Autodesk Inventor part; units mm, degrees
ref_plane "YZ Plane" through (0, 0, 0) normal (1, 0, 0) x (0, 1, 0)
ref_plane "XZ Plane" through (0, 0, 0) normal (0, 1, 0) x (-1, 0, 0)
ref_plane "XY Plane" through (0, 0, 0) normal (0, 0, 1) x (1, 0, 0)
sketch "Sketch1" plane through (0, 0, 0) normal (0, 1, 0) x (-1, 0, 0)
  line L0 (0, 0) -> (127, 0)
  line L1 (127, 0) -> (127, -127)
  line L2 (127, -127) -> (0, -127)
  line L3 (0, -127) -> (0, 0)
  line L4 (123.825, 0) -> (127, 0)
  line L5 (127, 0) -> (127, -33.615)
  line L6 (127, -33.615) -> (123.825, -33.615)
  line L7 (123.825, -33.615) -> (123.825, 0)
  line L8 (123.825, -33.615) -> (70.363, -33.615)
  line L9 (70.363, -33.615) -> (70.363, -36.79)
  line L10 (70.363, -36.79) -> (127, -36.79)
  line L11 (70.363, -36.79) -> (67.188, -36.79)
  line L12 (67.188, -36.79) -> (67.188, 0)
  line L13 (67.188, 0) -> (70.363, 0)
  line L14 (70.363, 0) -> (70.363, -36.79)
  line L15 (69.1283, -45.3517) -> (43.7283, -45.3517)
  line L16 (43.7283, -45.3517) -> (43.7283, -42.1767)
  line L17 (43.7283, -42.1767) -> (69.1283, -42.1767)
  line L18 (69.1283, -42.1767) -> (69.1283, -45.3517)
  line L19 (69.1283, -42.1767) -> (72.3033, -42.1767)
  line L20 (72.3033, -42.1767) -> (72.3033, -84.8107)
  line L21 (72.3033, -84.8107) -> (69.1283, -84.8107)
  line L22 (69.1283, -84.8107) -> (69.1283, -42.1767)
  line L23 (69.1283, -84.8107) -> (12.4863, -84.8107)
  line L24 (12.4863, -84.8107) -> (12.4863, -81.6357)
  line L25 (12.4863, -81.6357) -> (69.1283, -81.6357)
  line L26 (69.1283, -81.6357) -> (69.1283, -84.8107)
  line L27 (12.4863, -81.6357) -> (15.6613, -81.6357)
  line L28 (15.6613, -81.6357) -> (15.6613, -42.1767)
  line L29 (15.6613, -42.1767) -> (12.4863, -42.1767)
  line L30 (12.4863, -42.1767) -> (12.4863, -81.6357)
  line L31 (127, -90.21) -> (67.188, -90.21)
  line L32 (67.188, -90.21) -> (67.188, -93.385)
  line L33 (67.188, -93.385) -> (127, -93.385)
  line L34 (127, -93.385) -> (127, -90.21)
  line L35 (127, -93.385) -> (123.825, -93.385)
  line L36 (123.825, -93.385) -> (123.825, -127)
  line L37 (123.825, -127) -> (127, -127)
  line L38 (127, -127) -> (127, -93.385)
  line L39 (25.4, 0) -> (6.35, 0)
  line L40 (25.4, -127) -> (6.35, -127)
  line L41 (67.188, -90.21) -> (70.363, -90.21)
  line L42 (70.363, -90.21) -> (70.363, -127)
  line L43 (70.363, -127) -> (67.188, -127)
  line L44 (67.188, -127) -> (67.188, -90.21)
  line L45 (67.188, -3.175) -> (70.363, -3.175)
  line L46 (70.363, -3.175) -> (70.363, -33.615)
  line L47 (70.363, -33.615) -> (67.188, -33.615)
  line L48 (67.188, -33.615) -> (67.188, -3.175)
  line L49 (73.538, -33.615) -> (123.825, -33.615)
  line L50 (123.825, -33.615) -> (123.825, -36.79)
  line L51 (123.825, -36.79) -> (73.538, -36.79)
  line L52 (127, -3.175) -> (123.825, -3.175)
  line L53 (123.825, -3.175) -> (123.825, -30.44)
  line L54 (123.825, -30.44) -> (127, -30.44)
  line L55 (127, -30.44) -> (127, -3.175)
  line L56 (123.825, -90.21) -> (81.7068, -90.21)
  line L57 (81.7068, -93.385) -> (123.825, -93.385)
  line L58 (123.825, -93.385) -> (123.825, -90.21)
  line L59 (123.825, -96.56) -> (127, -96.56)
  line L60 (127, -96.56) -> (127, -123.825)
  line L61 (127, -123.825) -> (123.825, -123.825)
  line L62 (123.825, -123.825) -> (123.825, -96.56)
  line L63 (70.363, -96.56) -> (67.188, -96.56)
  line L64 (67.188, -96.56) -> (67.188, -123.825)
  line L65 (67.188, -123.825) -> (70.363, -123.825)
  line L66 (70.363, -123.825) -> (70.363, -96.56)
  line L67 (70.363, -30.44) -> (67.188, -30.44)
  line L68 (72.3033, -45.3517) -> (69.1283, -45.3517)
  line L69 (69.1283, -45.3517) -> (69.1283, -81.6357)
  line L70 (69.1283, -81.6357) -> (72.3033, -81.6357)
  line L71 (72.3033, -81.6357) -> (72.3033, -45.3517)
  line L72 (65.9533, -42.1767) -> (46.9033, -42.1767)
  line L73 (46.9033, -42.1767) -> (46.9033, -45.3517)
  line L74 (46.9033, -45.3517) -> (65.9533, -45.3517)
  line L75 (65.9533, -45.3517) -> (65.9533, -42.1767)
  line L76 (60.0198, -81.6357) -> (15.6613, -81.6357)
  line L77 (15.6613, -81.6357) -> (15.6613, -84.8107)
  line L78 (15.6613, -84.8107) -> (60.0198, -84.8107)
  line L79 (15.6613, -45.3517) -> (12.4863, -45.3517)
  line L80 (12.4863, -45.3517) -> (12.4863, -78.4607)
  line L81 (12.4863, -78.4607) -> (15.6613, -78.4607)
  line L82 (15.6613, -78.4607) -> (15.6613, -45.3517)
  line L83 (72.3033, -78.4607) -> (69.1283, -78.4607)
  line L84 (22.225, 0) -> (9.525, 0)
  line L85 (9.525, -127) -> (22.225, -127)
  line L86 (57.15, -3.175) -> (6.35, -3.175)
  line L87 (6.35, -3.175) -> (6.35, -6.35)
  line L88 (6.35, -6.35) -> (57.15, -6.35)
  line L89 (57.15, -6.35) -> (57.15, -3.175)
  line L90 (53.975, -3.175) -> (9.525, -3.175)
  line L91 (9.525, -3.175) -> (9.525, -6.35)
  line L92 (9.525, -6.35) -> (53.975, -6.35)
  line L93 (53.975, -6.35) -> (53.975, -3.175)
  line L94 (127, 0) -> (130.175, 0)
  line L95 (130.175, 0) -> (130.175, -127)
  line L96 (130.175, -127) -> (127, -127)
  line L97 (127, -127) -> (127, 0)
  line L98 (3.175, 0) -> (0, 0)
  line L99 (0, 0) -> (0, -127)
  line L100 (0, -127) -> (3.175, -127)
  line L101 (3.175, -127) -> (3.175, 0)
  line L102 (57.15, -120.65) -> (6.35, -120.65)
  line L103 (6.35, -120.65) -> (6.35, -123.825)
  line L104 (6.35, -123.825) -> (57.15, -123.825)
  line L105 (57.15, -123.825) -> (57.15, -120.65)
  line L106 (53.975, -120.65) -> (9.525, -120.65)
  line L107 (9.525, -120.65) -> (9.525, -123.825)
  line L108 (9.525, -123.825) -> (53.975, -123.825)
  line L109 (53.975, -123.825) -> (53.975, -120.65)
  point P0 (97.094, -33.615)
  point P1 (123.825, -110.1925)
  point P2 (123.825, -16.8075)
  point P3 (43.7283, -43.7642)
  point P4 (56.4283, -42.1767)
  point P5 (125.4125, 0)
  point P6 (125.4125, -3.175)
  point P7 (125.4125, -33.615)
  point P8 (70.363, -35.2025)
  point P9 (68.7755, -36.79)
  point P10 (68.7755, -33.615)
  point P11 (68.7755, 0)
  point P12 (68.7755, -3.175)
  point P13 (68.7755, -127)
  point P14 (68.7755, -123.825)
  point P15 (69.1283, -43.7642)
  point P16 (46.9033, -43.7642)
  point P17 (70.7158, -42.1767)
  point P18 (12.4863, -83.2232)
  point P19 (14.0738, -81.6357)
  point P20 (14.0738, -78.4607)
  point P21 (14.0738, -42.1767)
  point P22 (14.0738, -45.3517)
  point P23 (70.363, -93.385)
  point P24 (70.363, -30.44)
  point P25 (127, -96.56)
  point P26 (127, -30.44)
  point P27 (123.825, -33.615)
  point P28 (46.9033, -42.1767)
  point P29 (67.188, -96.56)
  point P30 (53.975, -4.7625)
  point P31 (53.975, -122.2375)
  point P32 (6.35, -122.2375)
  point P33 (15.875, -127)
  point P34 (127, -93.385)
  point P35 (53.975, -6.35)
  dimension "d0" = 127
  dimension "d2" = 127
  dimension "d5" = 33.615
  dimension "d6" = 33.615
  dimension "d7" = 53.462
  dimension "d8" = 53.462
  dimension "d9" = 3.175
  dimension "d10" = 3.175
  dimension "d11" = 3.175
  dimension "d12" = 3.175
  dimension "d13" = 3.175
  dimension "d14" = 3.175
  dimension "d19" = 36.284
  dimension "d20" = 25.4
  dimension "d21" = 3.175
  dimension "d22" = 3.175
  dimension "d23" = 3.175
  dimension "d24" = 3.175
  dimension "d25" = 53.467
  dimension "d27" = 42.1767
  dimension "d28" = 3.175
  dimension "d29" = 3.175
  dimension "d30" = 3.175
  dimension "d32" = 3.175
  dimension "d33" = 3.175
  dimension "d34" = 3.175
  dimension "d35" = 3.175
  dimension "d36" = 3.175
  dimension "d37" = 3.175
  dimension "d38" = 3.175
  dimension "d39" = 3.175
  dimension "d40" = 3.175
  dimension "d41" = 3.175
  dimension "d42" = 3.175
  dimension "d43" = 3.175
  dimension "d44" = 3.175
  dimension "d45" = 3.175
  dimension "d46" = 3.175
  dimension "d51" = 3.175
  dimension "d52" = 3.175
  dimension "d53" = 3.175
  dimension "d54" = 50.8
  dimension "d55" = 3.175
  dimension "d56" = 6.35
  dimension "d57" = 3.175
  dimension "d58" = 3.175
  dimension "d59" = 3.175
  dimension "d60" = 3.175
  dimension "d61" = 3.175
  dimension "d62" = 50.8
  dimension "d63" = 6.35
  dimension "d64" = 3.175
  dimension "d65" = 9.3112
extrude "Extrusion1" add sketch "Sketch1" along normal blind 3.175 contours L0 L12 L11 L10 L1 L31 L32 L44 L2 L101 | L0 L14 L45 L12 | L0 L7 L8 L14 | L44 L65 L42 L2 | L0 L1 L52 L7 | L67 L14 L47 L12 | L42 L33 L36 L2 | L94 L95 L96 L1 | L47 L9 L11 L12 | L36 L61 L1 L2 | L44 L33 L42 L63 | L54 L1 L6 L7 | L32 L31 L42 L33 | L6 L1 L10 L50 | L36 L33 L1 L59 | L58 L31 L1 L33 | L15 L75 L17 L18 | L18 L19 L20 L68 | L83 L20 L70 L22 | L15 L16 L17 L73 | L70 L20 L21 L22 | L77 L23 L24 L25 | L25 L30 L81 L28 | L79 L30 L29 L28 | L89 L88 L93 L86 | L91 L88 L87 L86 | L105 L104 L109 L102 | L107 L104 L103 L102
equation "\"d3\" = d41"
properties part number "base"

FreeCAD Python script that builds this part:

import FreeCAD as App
import Part
import Sketcher
from FreeCAD import Vector
Q = App.Units.Quantity

doc = App.newDocument("Part")
body = doc.addObject("PartDesign::Body", "Body")

# Sketch on XZ plane
sketch1 = doc.addObject("Sketcher::SketchObject", "Sketch")
body.addObject(sketch1)
sketch1.AttachmentSupport = (doc.XZ_Plane, [""])
sketch1.MapMode = "FlatFace"
sketch1.addGeometry(Part.LineSegment(Vector(-3.2, 0, 0), Vector(-3.2, -127, 0)), False)
sketch1.addGeometry(Part.LineSegment(Vector(-3.2, -127, 0), Vector(-130.2, -127, 0)), False)
sketch1.addGeometry(Part.LineSegment(Vector(-130.2, -127, 0), Vector(-130.2, 0, 0)), False)
sketch1.addGeometry(Part.LineSegment(Vector(-130.2, 0, 0), Vector(-3.2, 0, 0)), False)
sketch1.addGeometry(Part.LineSegment(Vector(-67.2, -30.4, 0), Vector(-67.2, -3.2, 0)), False)
sketch1.addGeometry(Part.LineSegment(Vector(-67.2, -3.2, 0), Vector(-70.4, -3.2, 0)), False)
sketch1.addGeometry(Part.LineSegment(Vector(-70.4, -3.2, 0), Vector(-70.4, -30.4, 0)), False)
sketch1.addGeometry(Part.LineSegment(Vector(-70.4, -30.4, 0), Vector(-67.2, -30.4, 0)), False)
sketch1.addGeometry(Part.LineSegment(Vector(-70.4, -36.8, 0), Vector(-70.4, -33.6, 0)), False)
sketch1.addGeometry(Part.LineSegment(Vector(-70.4, -33.6, 0), Vector(-123.8, -33.6, 0)), False)
sketch1.addGeometry(Part.LineSegment(Vector(-123.8, -33.6, 0), Vector(-123.8, -36.8, 0)), False)
sketch1.addGeometry(Part.LineSegment(Vector(-123.8, -36.8, 0), Vector(-70.4, -36.8, 0)), False)
sketch1.addGeometry(Part.LineSegment(Vector(-123.8, -90.2, 0), Vector(-123.8, -93.4, 0)), False)
sketch1.addGeometry(Part.LineSegment(Vector(-123.8, -93.4, 0), Vector(-70.4, -93.4, 0)), False)
sketch1.addGeometry(Part.LineSegment(Vector(-70.4, -93.4, 0), Vector(-70.4, -90.2, 0)), False)
sketch1.addGeometry(Part.LineSegment(Vector(-70.4, -90.2, 0), Vector(-123.8, -90.2, 0)), False)
sketch1.addGeometry(Part.LineSegment(Vector(-67.2, -123.8, 0), Vector(-67.2, -96.6, 0)), False)
sketch1.addGeometry(Part.LineSegment(Vector(-67.2, -96.6, 0), Vector(-70.4, -96.6, 0)), False)
sketch1.addGeometry(Part.LineSegment(Vector(-70.4, -96.6, 0), Vector(-70.4, -123.8, 0)), False)
sketch1.addGeometry(Part.LineSegment(Vector(-70.4, -123.8, 0), Vector(-67.2, -123.8, 0)), False)
sketch1.addGeometry(Part.LineSegment(Vector(-9.5, -120.7, 0), Vector(-54, -120.7, 0)), False)
sketch1.addGeometry(Part.LineSegment(Vector(-54, -120.7, 0), Vector(-54, -123.8, 0)), False)
sketch1.addGeometry(Part.LineSegment(Vector(-54, -123.8, 0), Vector(-9.5, -123.8, 0)), False)
sketch1.addGeometry(Part.LineSegment(Vector(-9.5, -123.8, 0), Vector(-9.5, -120.7, 0)), False)
sketch1.addGeometry(Part.LineSegment(Vector(-69.1, -78.5, 0), Vector(-69.1, -45.4, 0)), False)
sketch1.addGeometry(Part.LineSegment(Vector(-69.1, -45.4, 0), Vector(-72.3, -45.4, 0)), False)
sketch1.addGeometry(Part.LineSegment(Vector(-72.3, -45.4, 0), Vector(-72.3, -78.5, 0)), False)
sketch1.addGeometry(Part.LineSegment(Vector(-72.3, -78.5, 0), Vector(-69.1, -78.5, 0)), False)
sketch1.addGeometry(Part.LineSegment(Vector(-69.1, -81.6, 0), Vector(-69.1, -84.8, 0)), False)
sketch1.addGeometry(Part.LineSegment(Vector(-69.1, -84.8, 0), Vector(-15.7, -84.8, 0)), False)
sketch1.addGeometry(Part.LineSegment(Vector(-15.7, -84.8, 0), Vector(-15.7, -81.6, 0)), False)
sketch1.addGeometry(Part.LineSegment(Vector(-15.7, -81.6, 0), Vector(-69.1, -81.6, 0)), False)
sketch1.addGeometry(Part.LineSegment(Vector(-15.7, -45.4, 0), Vector(-15.7, -78.5, 0)), False)
sketch1.addGeometry(Part.LineSegment(Vector(-15.7, -78.5, 0), Vector(-12.5, -78.5, 0)), False)
sketch1.addGeometry(Part.LineSegment(Vector(-12.5, -78.5, 0), Vector(-12.5, -45.4, 0)), False)
sketch1.addGeometry(Part.LineSegment(Vector(-12.5, -45.4, 0), Vector(-15.7, -45.4, 0)), False)
sketch1.addGeometry(Part.LineSegment(Vector(-46.9, -42.2, 0), Vector(-66, -42.2, 0)), False)
sketch1.addGeometry(Part.LineSegment(Vector(-66, -42.2, 0), Vector(-66, -45.4, 0)), False)
sketch1.addGeometry(Part.LineSegment(Vector(-66, -45.4, 0), Vector(-46.9, -45.4, 0)), False)
sketch1.addGeometry(Part.LineSegment(Vector(-46.9, -45.4, 0), Vector(-46.9, -42.2, 0)), False)
sketch1.addGeometry(Part.LineSegment(Vector(-9.5, -3.2, 0), Vector(-54, -3.2, 0)), False)
sketch1.addGeometry(Part.LineSegment(Vector(-54, -3.2, 0), Vector(-54, -6.3, 0)), False)
sketch1.addGeometry(Part.LineSegment(Vector(-54, -6.3, 0), Vector(-9.5, -6.3, 0)), False)
sketch1.addGeometry(Part.LineSegment(Vector(-9.5, -6.3, 0), Vector(-9.5, -3.2, 0)), False)
sketch1.addGeometry(Part.LineSegment(Vector(-127, -96.6, 0), Vector(-127, -123.8, 0)), False)
sketch1.addGeometry(Part.LineSegment(Vector(-127, -123.8, 0), Vector(-123.8, -123.8, 0)), False)
sketch1.addGeometry(Part.LineSegment(Vector(-123.8, -123.8, 0), Vector(-123.8, -96.6, 0)), False)
sketch1.addGeometry(Part.LineSegment(Vector(-123.8, -96.6, 0), Vector(-127, -96.6, 0)), False)
sketch1.addGeometry(Part.LineSegment(Vector(-127, -3.2, 0), Vector(-127, -30.4, 0)), False)
sketch1.addGeometry(Part.LineSegment(Vector(-127, -30.4, 0), Vector(-123.8, -30.4, 0)), False)
sketch1.addGeometry(Part.LineSegment(Vector(-123.8, -30.4, 0), Vector(-123.8, -3.2, 0)), False)
sketch1.addGeometry(Part.LineSegment(Vector(-123.8, -3.2, 0), Vector(-127, -3.2, 0)), False)
sketch1.addConstraint(Sketcher.Constraint("Coincident", 0, 2, 1, 1))
sketch1.addConstraint(Sketcher.Constraint("Coincident", 1, 2, 2, 1))
sketch1.addConstraint(Sketcher.Constraint("Coincident", 2, 2, 3, 1))
sketch1.addConstraint(Sketcher.Constraint("Coincident", 3, 2, 0, 1))
sketch1.addConstraint(Sketcher.Constraint("Coincident", 4, 2, 5, 1))
sketch1.addConstraint(Sketcher.Constraint("Coincident", 5, 2, 6, 1))
sketch1.addConstraint(Sketcher.Constraint("Coincident", 6, 2, 7, 1))
sketch1.addConstraint(Sketcher.Constraint("Coincident", 7, 2, 4, 1))
sketch1.addConstraint(Sketcher.Constraint("Coincident", 8, 2, 9, 1))
sketch1.addConstraint(Sketcher.Constraint("Coincident", 9, 2, 10, 1))
sketch1.addConstraint(Sketcher.Constraint("Coincident", 10, 2, 11, 1))
sketch1.addConstraint(Sketcher.Constraint("Coincident", 11, 2, 8, 1))
sketch1.addConstraint(Sketcher.Constraint("Coincident", 12, 2, 13, 1))
sketch1.addConstraint(Sketcher.Constraint("Coincident", 13, 2, 14, 1))
sketch1.addConstraint(Sketcher.Constraint("Coincident", 14, 2, 15, 1))
sketch1.addConstraint(Sketcher.Constraint("Coincident", 15, 2, 12, 1))
sketch1.addConstraint(Sketcher.Constraint("Coincident", 16, 2, 17, 1))
sketch1.addConstraint(Sketcher.Constraint("Coincident", 17, 2, 18, 1))
sketch1.addConstraint(Sketcher.Constraint("Coincident", 18, 2, 19, 1))
sketch1.addConstraint(Sketcher.Constraint("Coincident", 19, 2, 16, 1))
sketch1.addConstraint(Sketcher.Constraint("Coincident", 20, 2, 21, 1))
sketch1.addConstraint(Sketcher.Constraint("Coincident", 21, 2, 22, 1))
sketch1.addConstraint(Sketcher.Constraint("Coincident", 22, 2, 23, 1))
sketch1.addConstraint(Sketcher.Constraint("Coincident", 23, 2, 20, 1))
sketch1.addConstraint(Sketcher.Constraint("Coincident", 24, 2, 25, 1))
sketch1.addConstraint(Sketcher.Constraint("Coincident", 25, 2, 26, 1))
sketch1.addConstraint(Sketcher.Constraint("Coincident", 26, 2, 27, 1))
sketch1.addConstraint(Sketcher.Constraint("Coincident", 27, 2, 24, 1))
sketch1.addConstraint(Sketcher.Constraint("Coincident", 28, 2, 29, 1))
sketch1.addConstraint(Sketcher.Constraint("Coincident", 29, 2, 30, 1))
sketch1.addConstraint(Sketcher.Constraint("Coincident", 30, 2, 31, 1))
sketch1.addConstraint(Sketcher.Constraint("Coincident", 31, 2, 28, 1))
sketch1.addConstraint(Sketcher.Constraint("Coincident", 32, 2, 33, 1))
sketch1.addConstraint(Sketcher.Constraint("Coincident", 33, 2, 34, 1))
sketch1.addConstraint(Sketcher.Constraint("Coincident", 34, 2, 35, 1))
sketch1.addConstraint(Sketcher.Constraint("Coincident", 35, 2, 32, 1))
sketch1.addConstraint(Sketcher.Constraint("Coincident", 36, 2, 37, 1))
sketch1.addConstraint(Sketcher.Constraint("Coincident", 37, 2, 38, 1))
sketch1.addConstraint(Sketcher.Constraint("Coincident", 38, 2, 39, 1))
sketch1.addConstraint(Sketcher.Constraint("Coincident", 39, 2, 36, 1))
sketch1.addConstraint(Sketcher.Constraint("Coincident", 40, 2, 41, 1))
sketch1.addConstraint(Sketcher.Constraint("Coincident", 41, 2, 42, 1))
sketch1.addConstraint(Sketcher.Constraint("Coincident", 42, 2, 43, 1))
sketch1.addConstraint(Sketcher.Constraint("Coincident", 43, 2, 40, 1))
sketch1.addConstraint(Sketcher.Constraint("Coincident", 44, 2, 45, 1))
sketch1.addConstraint(Sketcher.Constraint("Coincident", 45, 2, 46, 1))
sketch1.addConstraint(Sketcher.Constraint("Coincident", 46, 2, 47, 1))
sketch1.addConstraint(Sketcher.Constraint("Coincident", 47, 2, 44, 1))
sketch1.addConstraint(Sketcher.Constraint("Coincident", 48, 2, 49, 1))
sketch1.addConstraint(Sketcher.Constraint("Coincident", 49, 2, 50, 1))
sketch1.addConstraint(Sketcher.Constraint("Coincident", 50, 2, 51, 1))
sketch1.addConstraint(Sketcher.Constraint("Coincident", 51, 2, 48, 1))
sketch1.addConstraint(Sketcher.Constraint("Vertical", 0))
sketch1.addConstraint(Sketcher.Constraint("Horizontal", 1))
sketch1.addConstraint(Sketcher.Constraint("Vertical", 2))
sketch1.addConstraint(Sketcher.Constraint("Horizontal", 3))
sketch1.addConstraint(Sketcher.Constraint("Vertical", 4))
sketch1.addConstraint(Sketcher.Constraint("Horizontal", 5))
sketch1.addConstraint(Sketcher.Constraint("Vertical", 6))
sketch1.addConstraint(Sketcher.Constraint("Horizontal", 7))
sketch1.addConstraint(Sketcher.Constraint("Vertical", 8))
sketch1.addConstraint(Sketcher.Constraint("Horizontal", 9))
sketch1.addConstraint(Sketcher.Constraint("Vertical", 10))
sketch1.addConstraint(Sketcher.Constraint("Horizontal", 11))
sketch1.addConstraint(Sketcher.Constraint("Vertical", 12))
sketch1.addConstraint(Sketcher.Constraint("Horizontal", 13))
sketch1.addConstraint(Sketcher.Constraint("Vertical", 14))
sketch1.addConstraint(Sketcher.Constraint("Horizontal", 15))
sketch1.addConstraint(Sketcher.Constraint("Vertical", 16))
sketch1.addConstraint(Sketcher.Constraint("Horizontal", 17))
sketch1.addConstraint(Sketcher.Constraint("Vertical", 18))
sketch1.addConstraint(Sketcher.Constraint("Horizontal", 19))
sketch1.addConstraint(Sketcher.Constraint("Horizontal", 20))
sketch1.addConstraint(Sketcher.Constraint("Vertical", 21))
sketch1.addConstraint(Sketcher.Constraint("Horizontal", 22))
sketch1.addConstraint(Sketcher.Constraint("Vertical", 23))
sketch1.addConstraint(Sketcher.Constraint("Vertical", 24))
sketch1.addConstraint(Sketcher.Constraint("Horizontal", 25))
sketch1.addConstraint(Sketcher.Constraint("Vertical", 26))
sketch1.addConstraint(Sketcher.Constraint("Horizontal", 27))
sketch1.addConstraint(Sketcher.Constraint("Vertical", 28))
sketch1.addConstraint(Sketcher.Constraint("Horizontal", 29))
sketch1.addConstraint(Sketcher.Constraint("Vertical", 30))
sketch1.addConstraint(Sketcher.Constraint("Horizontal", 31))
sketch1.addConstraint(Sketcher.Constraint("Vertical", 32))
sketch1.addConstraint(Sketcher.Constraint("Horizontal", 33))
sketch1.addConstraint(Sketcher.Constraint("Vertical", 34))
sketch1.addConstraint(Sketcher.Constraint("Horizontal", 35))
sketch1.addConstraint(Sketcher.Constraint("Horizontal", 36))
sketch1.addConstraint(Sketcher.Constraint("Vertical", 37))
sketch1.addConstraint(Sketcher.Constraint("Horizontal", 38))
sketch1.addConstraint(Sketcher.Constraint("Vertical", 39))
sketch1.addConstraint(Sketcher.Constraint("Horizontal", 40))
sketch1.addConstraint(Sketcher.Constraint("Vertical", 41))
sketch1.addConstraint(Sketcher.Constraint("Horizontal", 42))
sketch1.addConstraint(Sketcher.Constraint("Vertical", 43))
sketch1.addConstraint(Sketcher.Constraint("Vertical", 44))
sketch1.addConstraint(Sketcher.Constraint("Horizontal", 45))
sketch1.addConstraint(Sketcher.Constraint("Vertical", 46))
sketch1.addConstraint(Sketcher.Constraint("Horizontal", 47))
sketch1.addConstraint(Sketcher.Constraint("Vertical", 48))
sketch1.addConstraint(Sketcher.Constraint("Horizontal", 49))
sketch1.addConstraint(Sketcher.Constraint("Vertical", 50))
sketch1.addConstraint(Sketcher.Constraint("Horizontal", 51))
sketch1.addConstraint(Sketcher.Constraint("PointOnObject", 2, 2, -1))
sketch1.addConstraint(Sketcher.Constraint("Horizontal", 19, 2, 21, 2))
sketch1.addConstraint(Sketcher.Constraint("Horizontal", 27, 2, 32, 2))
sketch1.addConstraint(Sketcher.Constraint("Horizontal", 25, 2, 34, 2))
sketch1.addConstraint(Sketcher.Constraint("Horizontal", 35, 2, 37, 2))
sketch1.addConstraint(Sketcher.Constraint("Horizontal", 5, 2, 40, 2))
sketch1.addConstraint(Sketcher.Constraint("Horizontal", 22, 2, 44, 2))
sketch1.addConstraint(Sketcher.Constraint("Horizontal", 17, 2, 46, 2))
sketch1.addConstraint(Sketcher.Constraint("Horizontal", 7, 2, 48, 2))
sketch1.addConstraint(Sketcher.Constraint("Horizontal", 43, 2, 50, 2))
sketch1.addConstraint(Sketcher.Constraint("Vertical", 6, 2, 8, 2))
sketch1.addConstraint(Sketcher.Constraint("Vertical", 10, 2, 12, 2))
sketch1.addConstraint(Sketcher.Constraint("Vertical", 11, 2, 13, 2))
sketch1.addConstraint(Sketcher.Constraint("Vertical", 7, 2, 16, 2))
sketch1.addConstraint(Sketcher.Constraint("Vertical", 14, 2, 17, 2))
sketch1.addConstraint(Sketcher.Constraint("Vertical", 27, 2, 28, 2))
sketch1.addConstraint(Sketcher.Constraint("Vertical", 30, 2, 32, 2))
sketch1.addConstraint(Sketcher.Constraint("Vertical", 21, 2, 40, 2))
sketch1.addConstraint(Sketcher.Constraint("Vertical", 23, 2, 42, 2))
sketch1.addConstraint(Sketcher.Constraint("Vertical", 15, 2, 45, 2))
sketch1.addConstraint(Sketcher.Constraint("Vertical", 47, 2, 48, 2))
sketch1.addConstraint(Sketcher.Constraint("Vertical", 46, 2, 49, 2))
sketch1.addConstraint(Sketcher.Constraint("Equal", 19, 25))
sketch1.addConstraint(Sketcher.Constraint("Equal", 27, 33))
sketch1.addConstraint(Sketcher.Constraint("Equal", 35, 45))
sketch1.addConstraint(Sketcher.Constraint("Equal", 3, 0))
sketch1.addConstraint(Sketcher.Constraint("Equal", 51, 8))
sketch1.addConstraint(Sketcher.Constraint("Equal", 10, 12))
sketch1.addConstraint(Sketcher.Constraint("Equal", 6, 16))
sketch1.addConstraint(Sketcher.Constraint("Equal", 14, 21))
sketch1.addConstraint(Sketcher.Constraint("Equal", 23, 28))
sketch1.addConstraint(Sketcher.Constraint("Equal", 30, 37))
sketch1.addConstraint(Sketcher.Constraint("Equal", 39, 41))
sketch1.addConstraint(Sketcher.Constraint("DistanceX", 1, 2, 1, 1, Q("5 in")))
sketch1.addConstraint(Sketcher.Constraint("DistanceX", 44, 2, -1, 1, Q("5 in")))
sketch1.addConstraint(Sketcher.Constraint("DistanceX", 5, 2, 5, 1, Q("0.125 in")))
sketch1.addConstraint(Sketcher.Constraint("DistanceX", 29, 1, 29, 2, Q("2.105 in")))
sketch1.addConstraint(Sketcher.Constraint("DistanceY", 41, 2, -1, 1, Q("0.25 in")))
sketch1.addConstraint(Sketcher.Constraint("DistanceX", 2, 2, 9, 2, Q("0.25 in")))
sketch1.addConstraint(Sketcher.Constraint("DistanceY", 10, 2, 6, 2, Q("0.25 in")))
sketch1.addConstraint(Sketcher.Constraint("DistanceY", 16, 2, 14, 2, Q("0.25 in")))
sketch1.addConstraint(Sketcher.Constraint("DistanceX", 22, 2, 0, 2, Q("0.25 in")))
sketch1.addConstraint(Sketcher.Constraint("DistanceY", 0, 2, 23, 2, Q("0.25 in")))
sketch1.addConstraint(Sketcher.Constraint("DistanceY", 28, 2, 27, 2, Q("0.25 in")))
sketch1.addConstraint(Sketcher.Constraint("DistanceX", 25, 2, 36, 2, Q("0.25 in")))
sketch1.addConstraint(Sketcher.Constraint("DistanceX", 9, 2, 9, 1, Q("2.1048 in")))
sketch1.addConstraint(Sketcher.Constraint("DistanceX", 20, 2, 20, 1, Q("1.75 in")))
sketch1.addConstraint(Sketcher.Constraint("DistanceX", 36, 2, 36, 1, Q("0.75 in")))
sketch1.addConstraint(Sketcher.Constraint("DistanceY", 36, 2, -1, 1, Q("1.6605 in")))
sketch1.addConstraint(Sketcher.Constraint("DistanceY", 30, 2, 34, 2, Q("1.4285 in")))
sketch1.addConstraint(Sketcher.Constraint("DistanceY", 8, 2, -1, 1, 33.615))
sketch1.addConstraint(Sketcher.Constraint("DistanceX", 34, 2, 3, 2, 9.3113))
pad1 = doc.addObject("PartDesign::Pad", "Pad")
body.addObject(pad1)
pad1.Profile = sketch1
pad1.Length = Q("0.125 in")
pad1.Reversed = True

doc.recompute()
